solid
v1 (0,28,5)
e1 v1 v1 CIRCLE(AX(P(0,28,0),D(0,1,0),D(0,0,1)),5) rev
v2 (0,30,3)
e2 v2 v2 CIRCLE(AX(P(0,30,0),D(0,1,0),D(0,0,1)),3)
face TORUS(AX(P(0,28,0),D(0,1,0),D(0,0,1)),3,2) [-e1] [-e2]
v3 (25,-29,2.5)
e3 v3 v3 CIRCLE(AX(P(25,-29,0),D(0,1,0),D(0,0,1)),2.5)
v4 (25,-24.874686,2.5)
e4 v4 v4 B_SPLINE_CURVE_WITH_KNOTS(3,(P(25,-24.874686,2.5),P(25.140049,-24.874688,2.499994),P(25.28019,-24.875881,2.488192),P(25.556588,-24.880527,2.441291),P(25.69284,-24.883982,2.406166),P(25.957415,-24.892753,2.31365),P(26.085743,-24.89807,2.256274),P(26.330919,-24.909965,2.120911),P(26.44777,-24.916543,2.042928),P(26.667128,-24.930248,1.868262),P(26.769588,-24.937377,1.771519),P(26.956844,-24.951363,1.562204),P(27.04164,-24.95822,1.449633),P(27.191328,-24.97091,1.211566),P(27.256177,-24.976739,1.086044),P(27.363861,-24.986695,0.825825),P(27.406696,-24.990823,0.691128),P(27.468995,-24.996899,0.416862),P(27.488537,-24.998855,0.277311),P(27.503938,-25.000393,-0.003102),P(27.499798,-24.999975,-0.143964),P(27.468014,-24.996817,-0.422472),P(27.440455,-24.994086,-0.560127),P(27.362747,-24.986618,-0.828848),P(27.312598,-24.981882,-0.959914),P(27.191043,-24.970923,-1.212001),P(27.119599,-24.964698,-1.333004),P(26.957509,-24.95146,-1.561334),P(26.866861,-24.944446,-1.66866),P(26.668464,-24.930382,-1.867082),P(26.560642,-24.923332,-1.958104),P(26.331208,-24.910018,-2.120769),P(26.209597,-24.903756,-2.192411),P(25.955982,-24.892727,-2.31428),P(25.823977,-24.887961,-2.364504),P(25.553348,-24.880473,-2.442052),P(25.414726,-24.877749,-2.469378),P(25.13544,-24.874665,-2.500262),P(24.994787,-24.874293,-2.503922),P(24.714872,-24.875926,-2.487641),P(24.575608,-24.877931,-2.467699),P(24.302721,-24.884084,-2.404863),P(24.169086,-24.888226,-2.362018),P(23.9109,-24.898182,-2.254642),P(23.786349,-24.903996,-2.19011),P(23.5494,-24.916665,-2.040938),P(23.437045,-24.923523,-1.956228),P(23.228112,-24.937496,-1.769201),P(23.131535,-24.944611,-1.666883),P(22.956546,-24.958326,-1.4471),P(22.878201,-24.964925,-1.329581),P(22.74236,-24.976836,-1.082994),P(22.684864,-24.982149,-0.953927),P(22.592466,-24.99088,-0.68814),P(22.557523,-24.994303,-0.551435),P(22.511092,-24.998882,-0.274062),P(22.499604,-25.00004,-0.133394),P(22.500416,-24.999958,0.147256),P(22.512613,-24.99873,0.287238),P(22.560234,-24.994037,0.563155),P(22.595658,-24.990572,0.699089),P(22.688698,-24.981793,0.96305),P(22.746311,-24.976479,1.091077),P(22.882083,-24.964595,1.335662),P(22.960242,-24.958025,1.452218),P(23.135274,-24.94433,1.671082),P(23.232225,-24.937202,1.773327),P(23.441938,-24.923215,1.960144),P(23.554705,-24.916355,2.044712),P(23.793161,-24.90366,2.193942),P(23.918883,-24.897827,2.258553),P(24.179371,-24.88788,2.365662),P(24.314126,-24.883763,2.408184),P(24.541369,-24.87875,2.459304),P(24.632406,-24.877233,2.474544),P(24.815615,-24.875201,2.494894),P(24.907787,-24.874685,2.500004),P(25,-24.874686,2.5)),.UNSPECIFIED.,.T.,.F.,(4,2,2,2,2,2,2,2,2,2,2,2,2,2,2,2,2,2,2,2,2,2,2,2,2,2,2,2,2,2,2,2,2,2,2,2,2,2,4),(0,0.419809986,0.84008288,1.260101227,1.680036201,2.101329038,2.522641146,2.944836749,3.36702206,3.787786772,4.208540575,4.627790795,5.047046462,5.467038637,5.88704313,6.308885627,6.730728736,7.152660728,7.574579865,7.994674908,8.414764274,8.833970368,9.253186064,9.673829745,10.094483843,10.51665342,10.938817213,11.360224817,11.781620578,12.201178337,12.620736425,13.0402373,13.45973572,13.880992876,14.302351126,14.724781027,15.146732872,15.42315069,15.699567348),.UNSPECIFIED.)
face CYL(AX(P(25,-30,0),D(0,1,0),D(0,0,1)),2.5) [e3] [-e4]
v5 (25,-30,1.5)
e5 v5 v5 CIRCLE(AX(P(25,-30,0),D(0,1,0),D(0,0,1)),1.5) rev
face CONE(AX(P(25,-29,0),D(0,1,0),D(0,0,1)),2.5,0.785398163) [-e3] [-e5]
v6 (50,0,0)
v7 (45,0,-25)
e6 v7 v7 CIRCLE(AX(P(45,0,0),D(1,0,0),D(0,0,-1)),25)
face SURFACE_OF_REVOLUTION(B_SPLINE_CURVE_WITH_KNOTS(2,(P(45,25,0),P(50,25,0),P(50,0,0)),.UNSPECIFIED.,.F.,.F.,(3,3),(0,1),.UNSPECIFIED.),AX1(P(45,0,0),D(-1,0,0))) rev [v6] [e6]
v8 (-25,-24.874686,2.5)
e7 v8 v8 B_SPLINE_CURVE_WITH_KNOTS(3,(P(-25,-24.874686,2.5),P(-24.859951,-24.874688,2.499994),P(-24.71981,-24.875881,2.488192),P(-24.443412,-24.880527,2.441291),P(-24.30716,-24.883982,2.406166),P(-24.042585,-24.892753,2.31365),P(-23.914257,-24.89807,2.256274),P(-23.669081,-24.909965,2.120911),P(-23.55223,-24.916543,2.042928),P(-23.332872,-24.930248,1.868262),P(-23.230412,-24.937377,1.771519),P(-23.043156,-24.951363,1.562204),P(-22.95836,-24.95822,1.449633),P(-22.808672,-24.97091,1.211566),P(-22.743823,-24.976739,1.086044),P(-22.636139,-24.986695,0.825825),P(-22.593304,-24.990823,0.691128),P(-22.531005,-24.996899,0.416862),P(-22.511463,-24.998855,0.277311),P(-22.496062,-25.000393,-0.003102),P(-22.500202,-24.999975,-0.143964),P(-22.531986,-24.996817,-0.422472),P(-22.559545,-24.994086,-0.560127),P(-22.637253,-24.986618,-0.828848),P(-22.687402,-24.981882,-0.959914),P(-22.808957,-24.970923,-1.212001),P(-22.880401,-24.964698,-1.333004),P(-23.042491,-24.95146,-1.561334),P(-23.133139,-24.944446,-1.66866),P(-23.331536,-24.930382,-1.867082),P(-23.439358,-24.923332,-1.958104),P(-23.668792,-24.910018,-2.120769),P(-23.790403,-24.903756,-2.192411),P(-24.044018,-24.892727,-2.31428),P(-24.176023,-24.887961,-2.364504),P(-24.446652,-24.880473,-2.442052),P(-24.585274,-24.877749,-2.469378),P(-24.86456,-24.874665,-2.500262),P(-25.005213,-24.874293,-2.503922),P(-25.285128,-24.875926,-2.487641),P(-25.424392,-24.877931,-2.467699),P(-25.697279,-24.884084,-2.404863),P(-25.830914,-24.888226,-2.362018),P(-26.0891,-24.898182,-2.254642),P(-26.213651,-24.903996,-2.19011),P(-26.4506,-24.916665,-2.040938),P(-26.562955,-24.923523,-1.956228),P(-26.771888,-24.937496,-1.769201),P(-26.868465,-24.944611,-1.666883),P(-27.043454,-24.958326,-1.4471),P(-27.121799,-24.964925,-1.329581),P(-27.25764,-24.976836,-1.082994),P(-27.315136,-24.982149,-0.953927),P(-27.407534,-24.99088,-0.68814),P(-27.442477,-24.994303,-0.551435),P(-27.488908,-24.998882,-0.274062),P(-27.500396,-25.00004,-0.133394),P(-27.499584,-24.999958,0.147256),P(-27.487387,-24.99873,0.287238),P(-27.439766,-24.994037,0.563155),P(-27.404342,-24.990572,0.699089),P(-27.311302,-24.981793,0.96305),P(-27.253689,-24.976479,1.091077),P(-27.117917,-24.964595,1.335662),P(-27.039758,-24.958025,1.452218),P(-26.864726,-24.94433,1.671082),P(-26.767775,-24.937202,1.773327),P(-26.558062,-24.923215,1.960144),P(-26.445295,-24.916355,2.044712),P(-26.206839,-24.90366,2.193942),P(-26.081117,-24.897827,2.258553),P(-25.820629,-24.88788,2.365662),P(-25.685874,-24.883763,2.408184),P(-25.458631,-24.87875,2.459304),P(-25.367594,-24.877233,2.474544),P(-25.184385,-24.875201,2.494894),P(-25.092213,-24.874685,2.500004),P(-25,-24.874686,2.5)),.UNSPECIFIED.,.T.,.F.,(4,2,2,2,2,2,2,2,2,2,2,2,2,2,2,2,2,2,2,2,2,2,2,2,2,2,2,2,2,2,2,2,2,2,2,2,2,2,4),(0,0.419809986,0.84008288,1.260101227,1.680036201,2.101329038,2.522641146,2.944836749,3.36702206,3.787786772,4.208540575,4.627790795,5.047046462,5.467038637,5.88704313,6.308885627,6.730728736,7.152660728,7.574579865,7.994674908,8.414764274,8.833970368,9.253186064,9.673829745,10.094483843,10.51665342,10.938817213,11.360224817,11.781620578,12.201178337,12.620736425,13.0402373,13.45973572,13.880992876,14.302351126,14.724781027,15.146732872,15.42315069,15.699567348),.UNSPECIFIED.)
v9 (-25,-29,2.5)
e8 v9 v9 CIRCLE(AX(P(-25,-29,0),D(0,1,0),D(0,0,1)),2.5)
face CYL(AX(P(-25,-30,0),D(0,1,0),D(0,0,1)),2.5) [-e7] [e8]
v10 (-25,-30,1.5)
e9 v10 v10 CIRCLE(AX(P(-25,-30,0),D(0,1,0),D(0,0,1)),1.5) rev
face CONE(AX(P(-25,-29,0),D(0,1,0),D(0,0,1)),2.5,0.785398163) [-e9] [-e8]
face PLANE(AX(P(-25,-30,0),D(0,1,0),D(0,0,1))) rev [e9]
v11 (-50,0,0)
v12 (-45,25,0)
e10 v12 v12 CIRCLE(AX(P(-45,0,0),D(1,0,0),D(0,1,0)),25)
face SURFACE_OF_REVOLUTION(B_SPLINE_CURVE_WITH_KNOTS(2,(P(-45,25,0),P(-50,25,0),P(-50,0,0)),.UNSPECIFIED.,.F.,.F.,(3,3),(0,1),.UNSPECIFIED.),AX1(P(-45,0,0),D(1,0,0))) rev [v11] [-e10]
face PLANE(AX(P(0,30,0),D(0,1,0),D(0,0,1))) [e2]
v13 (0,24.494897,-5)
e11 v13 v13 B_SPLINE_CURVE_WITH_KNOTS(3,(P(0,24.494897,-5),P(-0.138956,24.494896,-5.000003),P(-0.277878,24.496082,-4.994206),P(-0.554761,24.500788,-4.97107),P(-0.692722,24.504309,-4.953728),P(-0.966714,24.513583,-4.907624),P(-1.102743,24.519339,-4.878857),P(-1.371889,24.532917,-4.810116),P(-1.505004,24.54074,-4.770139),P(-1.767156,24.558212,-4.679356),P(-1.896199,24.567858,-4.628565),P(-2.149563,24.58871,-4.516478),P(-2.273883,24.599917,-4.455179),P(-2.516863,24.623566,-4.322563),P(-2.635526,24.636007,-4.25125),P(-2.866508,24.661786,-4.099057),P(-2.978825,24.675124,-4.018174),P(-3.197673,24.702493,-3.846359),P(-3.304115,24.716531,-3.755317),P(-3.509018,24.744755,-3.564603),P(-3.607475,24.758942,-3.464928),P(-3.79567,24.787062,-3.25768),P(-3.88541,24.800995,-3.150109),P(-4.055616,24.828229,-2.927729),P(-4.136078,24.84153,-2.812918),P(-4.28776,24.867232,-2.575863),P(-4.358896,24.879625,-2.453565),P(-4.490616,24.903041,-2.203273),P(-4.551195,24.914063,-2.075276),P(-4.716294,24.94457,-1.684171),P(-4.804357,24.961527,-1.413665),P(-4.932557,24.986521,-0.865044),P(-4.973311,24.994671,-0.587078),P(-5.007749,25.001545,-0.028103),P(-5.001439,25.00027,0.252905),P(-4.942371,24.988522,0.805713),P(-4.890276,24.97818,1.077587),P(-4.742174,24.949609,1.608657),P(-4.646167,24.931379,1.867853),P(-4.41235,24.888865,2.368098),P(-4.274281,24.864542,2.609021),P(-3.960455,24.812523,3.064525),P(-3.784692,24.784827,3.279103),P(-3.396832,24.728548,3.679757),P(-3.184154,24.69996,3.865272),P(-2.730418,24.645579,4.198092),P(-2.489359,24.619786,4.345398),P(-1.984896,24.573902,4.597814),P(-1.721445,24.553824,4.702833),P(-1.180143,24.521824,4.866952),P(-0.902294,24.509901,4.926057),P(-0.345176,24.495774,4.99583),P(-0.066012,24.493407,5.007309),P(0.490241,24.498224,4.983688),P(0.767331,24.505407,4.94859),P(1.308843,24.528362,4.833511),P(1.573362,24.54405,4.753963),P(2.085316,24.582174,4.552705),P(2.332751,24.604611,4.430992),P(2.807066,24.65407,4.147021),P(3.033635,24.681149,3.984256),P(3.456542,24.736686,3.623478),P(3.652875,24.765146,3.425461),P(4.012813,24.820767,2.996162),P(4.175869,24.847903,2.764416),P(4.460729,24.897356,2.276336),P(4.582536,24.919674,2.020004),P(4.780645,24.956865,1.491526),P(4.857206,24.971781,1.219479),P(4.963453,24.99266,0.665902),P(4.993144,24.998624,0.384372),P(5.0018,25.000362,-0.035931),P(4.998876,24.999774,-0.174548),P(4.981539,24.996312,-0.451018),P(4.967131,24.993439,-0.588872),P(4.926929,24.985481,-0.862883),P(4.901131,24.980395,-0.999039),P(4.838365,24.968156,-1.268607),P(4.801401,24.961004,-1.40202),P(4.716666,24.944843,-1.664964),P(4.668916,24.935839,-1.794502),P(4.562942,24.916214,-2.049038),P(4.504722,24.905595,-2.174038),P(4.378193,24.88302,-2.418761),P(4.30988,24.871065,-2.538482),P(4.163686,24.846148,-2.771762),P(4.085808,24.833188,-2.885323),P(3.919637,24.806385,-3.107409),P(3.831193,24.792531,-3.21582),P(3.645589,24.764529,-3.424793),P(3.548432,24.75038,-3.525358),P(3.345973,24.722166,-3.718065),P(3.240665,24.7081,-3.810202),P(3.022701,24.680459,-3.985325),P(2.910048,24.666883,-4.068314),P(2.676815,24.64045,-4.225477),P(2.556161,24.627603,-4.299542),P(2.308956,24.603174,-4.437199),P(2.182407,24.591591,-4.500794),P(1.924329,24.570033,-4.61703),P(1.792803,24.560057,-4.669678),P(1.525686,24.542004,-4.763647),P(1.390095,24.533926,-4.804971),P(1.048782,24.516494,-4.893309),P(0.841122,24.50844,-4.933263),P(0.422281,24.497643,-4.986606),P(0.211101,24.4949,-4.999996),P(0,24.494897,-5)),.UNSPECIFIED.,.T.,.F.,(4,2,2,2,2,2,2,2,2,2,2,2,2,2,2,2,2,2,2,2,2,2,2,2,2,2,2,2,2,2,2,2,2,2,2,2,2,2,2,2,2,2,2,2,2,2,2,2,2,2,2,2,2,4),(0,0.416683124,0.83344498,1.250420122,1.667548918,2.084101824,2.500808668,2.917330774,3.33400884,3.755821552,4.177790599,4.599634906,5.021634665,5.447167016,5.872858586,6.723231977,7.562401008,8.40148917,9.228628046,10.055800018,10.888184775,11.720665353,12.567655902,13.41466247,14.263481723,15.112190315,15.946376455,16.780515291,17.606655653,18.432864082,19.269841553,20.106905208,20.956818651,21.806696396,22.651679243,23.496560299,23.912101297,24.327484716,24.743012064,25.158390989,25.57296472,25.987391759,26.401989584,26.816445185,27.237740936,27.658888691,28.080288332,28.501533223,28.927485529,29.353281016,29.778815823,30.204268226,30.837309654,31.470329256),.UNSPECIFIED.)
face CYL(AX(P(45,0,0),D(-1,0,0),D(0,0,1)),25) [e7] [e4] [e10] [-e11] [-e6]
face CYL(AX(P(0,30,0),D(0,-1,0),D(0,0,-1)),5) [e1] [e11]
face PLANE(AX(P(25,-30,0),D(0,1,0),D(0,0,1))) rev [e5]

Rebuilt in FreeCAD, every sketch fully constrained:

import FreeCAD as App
import Part
import Sketcher

V = App.Vector


def edges_at(feature, points):
    """Names of the edges that pass closest to the given points."""
    edges = feature.Shape.Edges
    near = lambda p: min(range(len(edges)), key=lambda i: edges[i].distToShape(Part.Vertex(*p))[0])
    return sorted({f"Edge{near(p) + 1}" for p in points})

doc = App.newDocument("Part")
body = doc.addObject("PartDesign::Body", "Body")

sketch1 = body.newObject("Sketcher::SketchObject", "Sketch")
sketch1.AttachmentSupport = (doc.getObject("YZ_Plane"), [""])
sketch1.MapMode = "FlatFace"
sketch1.addGeometry(Part.Circle(V(0, 0, 0), V(0, 0, 1), 25), False)
sketch1.addConstraint(Sketcher.Constraint("Coincident", 0, 3, -1, 1))
sketch1.addConstraint(Sketcher.Constraint("Diameter", 0, 50.0))
pad1 = body.newObject("PartDesign::Pad", "Pad")
pad1.Profile = sketch1
pad1.Length = 90
pad1.Midplane = True

sketch2 = body.newObject("Sketcher::SketchObject", "Sketch001")
sketch2.AttachmentSupport = (doc.getObject("XY_Plane"), [""])
sketch2.MapMode = "FlatFace"
sketch2.addGeometry(Part.LineSegment(V(-45, 0, 0), V(-45, 25, 0)), False)
sketch2.addGeometry(Part.BSplineCurve([V(-45, 25, 0), V(-50, 25, 0), V(-50, 0, 0)], [3, 3], [0, 1], False, 2, [1, 1, 1], False), False)
sketch2.addGeometry(Part.LineSegment(V(-50, 0, 0), V(-45, 0, 0)), False)
sketch2.addConstraint(Sketcher.Constraint("Block", 1))
sketch2.addConstraint(Sketcher.Constraint("Coincident", 0, 2, 1, 1))
sketch2.addConstraint(Sketcher.Constraint("Coincident", 1, 2, 2, 1))
sketch2.addConstraint(Sketcher.Constraint("Coincident", 2, 2, 0, 1))
sketch2.addConstraint(Sketcher.Constraint("Vertical", 0))
sketch2.addConstraint(Sketcher.Constraint("Horizontal", 2))
revolution = body.newObject("PartDesign::Revolution", "Revolution")
revolution.Profile = sketch2
revolution.ReferenceAxis = (sketch2, ["H_Axis"])
revolution.Angle = 360

sketch3 = body.newObject("Sketcher::SketchObject", "Sketch002")
sketch3.AttachmentSupport = (doc.getObject("XY_Plane"), [""])
sketch3.MapMode = "FlatFace"
sketch3.addGeometry(Part.BSplineCurve([V(45, 25, 0), V(50, 25, 0), V(50, 0, 0)], [3, 3], [0, 1], False, 2, [1, 1, 1], False), False)
sketch3.addGeometry(Part.LineSegment(V(45, 25, 0), V(45, 0, 0)), False)
sketch3.addGeometry(Part.LineSegment(V(45, 0, 0), V(50, 0, 0)), False)
sketch3.addConstraint(Sketcher.Constraint("Block", 0))
sketch3.addConstraint(Sketcher.Constraint("Coincident", 0, 1, 1, 1))
sketch3.addConstraint(Sketcher.Constraint("Coincident", 1, 2, 2, 1))
sketch3.addConstraint(Sketcher.Constraint("Coincident", 2, 2, 0, 2))
sketch3.addConstraint(Sketcher.Constraint("Vertical", 1))
sketch3.addConstraint(Sketcher.Constraint("Horizontal", 2))
revolution2 = body.newObject("PartDesign::Revolution", "Revolution001")
revolution2.Profile = sketch3
revolution2.ReferenceAxis = (sketch3, ["H_Axis"])
revolution2.Angle = 360

sketch4 = body.newObject("Sketcher::SketchObject", "Sketch003")
sketch4.AttachmentSupport = (doc.getObject("XZ_Plane"), [""])
sketch4.MapMode = "FlatFace"
sketch4.addGeometry(Part.Circle(V(0, 0, 0), V(0, 0, 1), 5), False)
sketch4.addConstraint(Sketcher.Constraint("Coincident", 0, 3, -1, 1))
sketch4.addConstraint(Sketcher.Constraint("Diameter", 0, 10.0))
pad2 = body.newObject("PartDesign::Pad", "Pad001")
pad2.Profile = sketch4
pad2.Length = 30
pad2.Reversed = True
doc.recompute()

fillet = body.newObject("PartDesign::Fillet", "Fillet")
fillet.Base = (pad2, edges_at(pad2, [(0, 30, 5)]))
fillet.Radius = 2

sketch5 = body.newObject("Sketcher::SketchObject", "Sketch004")
sketch5.AttachmentSupport = (doc.getObject("XZ_Plane"), [""])
sketch5.MapMode = "FlatFace"
sketch5.addGeometry(Part.Circle(V(-25, 0, 0), V(0, 0, 1), 2.5), False)
sketch5.addGeometry(Part.Circle(V(25, 0, 0), V(0, 0, 1), 2.5), False)
sketch5.addConstraint(Sketcher.Constraint("Equal", 0, 1))
sketch5.addConstraint(Sketcher.Constraint("Symmetric", 0, 3, 1, 3, -1, 1))
sketch5.addConstraint(Sketcher.Constraint("PointOnObject", 0, 3, -1))
sketch5.addConstraint(Sketcher.Constraint("Diameter", 0, 5.0))
sketch5.addConstraint(Sketcher.Constraint("DistanceX", 0, 3, -1, 1, 25.0))
pad3 = body.newObject("PartDesign::Pad", "Pad002")
pad3.Profile = sketch5
pad3.Length = 30
doc.recompute()

chamfer = body.newObject("PartDesign::Chamfer", "Chamfer")
chamfer.Base = (pad3, edges_at(pad3, [(-25, -30, -2.5), (25, -30, -2.5)]))
chamfer.Size = 1

doc.recompute()
